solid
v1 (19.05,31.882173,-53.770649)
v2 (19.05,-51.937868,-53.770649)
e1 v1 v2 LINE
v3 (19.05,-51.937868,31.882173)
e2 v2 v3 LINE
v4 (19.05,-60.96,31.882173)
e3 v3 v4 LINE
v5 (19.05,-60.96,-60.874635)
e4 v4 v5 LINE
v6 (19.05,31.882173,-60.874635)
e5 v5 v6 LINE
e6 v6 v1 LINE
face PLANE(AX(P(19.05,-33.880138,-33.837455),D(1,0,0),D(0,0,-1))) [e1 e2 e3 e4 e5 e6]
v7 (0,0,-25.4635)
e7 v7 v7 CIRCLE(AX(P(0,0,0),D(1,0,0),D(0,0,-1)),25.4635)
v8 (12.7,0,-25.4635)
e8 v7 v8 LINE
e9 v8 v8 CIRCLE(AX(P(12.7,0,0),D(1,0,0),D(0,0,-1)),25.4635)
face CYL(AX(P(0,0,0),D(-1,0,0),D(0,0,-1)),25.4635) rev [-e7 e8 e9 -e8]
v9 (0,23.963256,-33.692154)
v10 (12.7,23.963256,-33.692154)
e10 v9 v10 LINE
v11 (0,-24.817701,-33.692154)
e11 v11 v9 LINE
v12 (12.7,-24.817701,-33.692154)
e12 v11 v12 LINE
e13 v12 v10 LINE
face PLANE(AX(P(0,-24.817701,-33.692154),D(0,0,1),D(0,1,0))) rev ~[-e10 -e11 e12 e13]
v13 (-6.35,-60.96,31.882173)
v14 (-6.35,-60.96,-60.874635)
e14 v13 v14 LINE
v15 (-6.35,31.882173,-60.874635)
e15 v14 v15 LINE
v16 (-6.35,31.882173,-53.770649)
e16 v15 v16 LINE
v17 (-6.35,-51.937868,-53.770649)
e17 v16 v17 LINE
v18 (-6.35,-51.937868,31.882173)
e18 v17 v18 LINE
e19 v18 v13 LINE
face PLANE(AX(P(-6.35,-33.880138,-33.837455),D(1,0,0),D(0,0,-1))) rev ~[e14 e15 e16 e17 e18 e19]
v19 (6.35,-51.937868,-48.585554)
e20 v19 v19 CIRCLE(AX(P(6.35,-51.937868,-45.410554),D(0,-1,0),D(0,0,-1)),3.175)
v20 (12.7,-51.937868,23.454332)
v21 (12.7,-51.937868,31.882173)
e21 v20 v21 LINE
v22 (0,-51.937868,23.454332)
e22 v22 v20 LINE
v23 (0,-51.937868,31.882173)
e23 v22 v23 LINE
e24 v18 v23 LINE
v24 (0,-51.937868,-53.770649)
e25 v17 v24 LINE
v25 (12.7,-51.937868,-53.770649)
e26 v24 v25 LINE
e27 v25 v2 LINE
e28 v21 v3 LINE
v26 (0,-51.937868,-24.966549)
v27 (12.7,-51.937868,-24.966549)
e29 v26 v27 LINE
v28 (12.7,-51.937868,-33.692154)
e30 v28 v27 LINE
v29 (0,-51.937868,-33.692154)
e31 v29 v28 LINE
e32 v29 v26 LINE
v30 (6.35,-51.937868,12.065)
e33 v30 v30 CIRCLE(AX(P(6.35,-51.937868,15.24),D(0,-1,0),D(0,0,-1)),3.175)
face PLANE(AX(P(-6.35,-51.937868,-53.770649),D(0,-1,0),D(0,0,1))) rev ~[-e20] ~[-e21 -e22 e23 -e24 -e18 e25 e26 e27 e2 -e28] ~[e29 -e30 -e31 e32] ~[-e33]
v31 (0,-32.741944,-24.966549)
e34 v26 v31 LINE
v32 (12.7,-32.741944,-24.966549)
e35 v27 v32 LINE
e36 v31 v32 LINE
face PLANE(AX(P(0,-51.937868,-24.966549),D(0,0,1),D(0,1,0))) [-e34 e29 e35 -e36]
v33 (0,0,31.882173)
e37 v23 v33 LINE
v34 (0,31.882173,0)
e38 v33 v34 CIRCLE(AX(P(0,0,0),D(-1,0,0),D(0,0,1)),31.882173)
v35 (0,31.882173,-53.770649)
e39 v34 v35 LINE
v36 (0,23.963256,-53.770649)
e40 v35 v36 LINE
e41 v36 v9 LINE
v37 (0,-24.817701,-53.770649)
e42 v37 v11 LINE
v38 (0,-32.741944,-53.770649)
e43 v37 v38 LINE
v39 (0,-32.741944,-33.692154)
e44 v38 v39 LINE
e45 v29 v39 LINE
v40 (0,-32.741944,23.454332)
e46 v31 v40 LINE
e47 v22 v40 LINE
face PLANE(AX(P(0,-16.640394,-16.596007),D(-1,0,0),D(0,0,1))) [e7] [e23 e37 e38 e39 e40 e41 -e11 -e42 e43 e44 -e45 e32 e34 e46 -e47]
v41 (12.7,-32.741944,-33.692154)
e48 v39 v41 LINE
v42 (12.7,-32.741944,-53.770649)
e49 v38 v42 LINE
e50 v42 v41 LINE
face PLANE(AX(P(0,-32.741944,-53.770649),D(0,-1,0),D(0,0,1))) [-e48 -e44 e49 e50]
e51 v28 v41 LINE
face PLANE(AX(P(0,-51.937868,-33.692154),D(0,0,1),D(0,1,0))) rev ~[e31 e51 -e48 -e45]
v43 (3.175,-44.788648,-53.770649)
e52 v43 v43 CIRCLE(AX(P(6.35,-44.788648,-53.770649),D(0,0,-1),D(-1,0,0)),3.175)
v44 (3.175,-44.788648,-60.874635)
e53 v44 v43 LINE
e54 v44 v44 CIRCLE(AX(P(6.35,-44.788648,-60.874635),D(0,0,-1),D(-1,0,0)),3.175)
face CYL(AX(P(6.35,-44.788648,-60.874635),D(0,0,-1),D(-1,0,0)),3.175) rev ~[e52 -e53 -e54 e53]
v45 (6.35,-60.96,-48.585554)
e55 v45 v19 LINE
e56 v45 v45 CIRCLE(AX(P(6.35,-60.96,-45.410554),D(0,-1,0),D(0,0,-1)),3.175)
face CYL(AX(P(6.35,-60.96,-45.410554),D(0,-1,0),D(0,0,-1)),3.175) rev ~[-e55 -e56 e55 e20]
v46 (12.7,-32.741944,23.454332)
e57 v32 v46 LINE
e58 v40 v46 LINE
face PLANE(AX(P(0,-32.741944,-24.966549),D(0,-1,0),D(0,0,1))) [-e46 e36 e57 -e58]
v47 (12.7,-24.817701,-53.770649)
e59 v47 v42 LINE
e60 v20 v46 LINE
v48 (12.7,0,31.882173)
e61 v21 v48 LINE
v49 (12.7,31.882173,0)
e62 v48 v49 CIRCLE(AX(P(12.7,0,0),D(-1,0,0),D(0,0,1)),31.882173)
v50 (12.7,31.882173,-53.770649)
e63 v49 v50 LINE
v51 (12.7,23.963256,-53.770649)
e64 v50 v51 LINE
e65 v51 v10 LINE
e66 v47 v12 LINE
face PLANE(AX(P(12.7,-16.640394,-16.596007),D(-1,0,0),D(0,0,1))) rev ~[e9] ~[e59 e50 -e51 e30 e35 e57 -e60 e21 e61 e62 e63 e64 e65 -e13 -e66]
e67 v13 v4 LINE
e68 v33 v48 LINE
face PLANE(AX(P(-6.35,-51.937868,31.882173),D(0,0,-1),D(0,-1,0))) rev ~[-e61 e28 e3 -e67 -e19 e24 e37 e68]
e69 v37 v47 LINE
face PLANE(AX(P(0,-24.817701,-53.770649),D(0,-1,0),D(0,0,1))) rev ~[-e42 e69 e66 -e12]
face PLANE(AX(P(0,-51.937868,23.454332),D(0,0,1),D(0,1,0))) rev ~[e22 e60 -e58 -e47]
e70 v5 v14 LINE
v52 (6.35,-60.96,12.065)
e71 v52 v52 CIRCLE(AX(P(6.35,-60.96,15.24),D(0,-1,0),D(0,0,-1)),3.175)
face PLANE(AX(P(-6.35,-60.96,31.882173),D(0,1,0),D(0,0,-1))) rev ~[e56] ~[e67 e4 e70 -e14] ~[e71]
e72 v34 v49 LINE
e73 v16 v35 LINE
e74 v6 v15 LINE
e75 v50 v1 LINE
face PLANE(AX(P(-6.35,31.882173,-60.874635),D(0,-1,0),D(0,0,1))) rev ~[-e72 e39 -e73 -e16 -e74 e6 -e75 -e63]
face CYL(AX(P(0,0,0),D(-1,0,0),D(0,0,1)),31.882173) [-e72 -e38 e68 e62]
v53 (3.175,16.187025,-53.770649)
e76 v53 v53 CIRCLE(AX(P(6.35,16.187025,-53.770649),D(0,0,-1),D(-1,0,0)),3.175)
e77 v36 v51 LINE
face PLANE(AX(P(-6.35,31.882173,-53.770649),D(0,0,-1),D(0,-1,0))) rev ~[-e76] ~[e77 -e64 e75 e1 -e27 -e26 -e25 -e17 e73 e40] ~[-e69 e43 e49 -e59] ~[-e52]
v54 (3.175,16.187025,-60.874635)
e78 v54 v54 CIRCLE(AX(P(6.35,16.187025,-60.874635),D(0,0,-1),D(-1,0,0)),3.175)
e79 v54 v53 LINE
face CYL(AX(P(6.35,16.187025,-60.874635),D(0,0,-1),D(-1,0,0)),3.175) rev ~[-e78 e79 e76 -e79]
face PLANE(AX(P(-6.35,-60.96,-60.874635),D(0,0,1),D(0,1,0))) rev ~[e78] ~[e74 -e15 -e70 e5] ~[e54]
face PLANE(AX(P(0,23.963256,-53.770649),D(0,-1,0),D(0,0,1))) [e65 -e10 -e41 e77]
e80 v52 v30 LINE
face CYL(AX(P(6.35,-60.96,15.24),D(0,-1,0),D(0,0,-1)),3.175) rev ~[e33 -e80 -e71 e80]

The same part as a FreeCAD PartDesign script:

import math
import FreeCAD as App
import Part
import Sketcher

V = App.Vector
Q = App.Units.Quantity


def add_polygon(sketch, points):
    """Adds a closed chain of lines whose ends are joined by coincident constraints."""
    first, n = sketch.GeometryCount, len(points)
    for a, b in zip(points, points[1:] + points[:1]):
        sketch.addGeometry(Part.LineSegment(App.Vector(*a, 0), App.Vector(*b, 0)), False)
    for i in range(n):
        sketch.addConstraint(Sketcher.Constraint("Coincident", first + i, 2, first + (i + 1) % n, 1))

doc = App.newDocument("Part")
body = doc.addObject("PartDesign::Body", "Body")

# Sketch on YZ plane
sketch1 = body.newObject("Sketcher::SketchObject", "Sketch")
sketch1.AttachmentSupport = (doc.getObject("YZ_Plane"), [""])
sketch1.MapMode = "FlatFace"
sketch1.addGeometry([
    Part.LineSegment(V(32, -61, 0), V(32, 0, 0)),  # 0
    Part.ArcOfCircle(Part.Circle(V(0, 0, 0), V(0, 0, 1), 32), math.radians(0), math.radians(90)),  # 1
    Part.LineSegment(V(0, 32, 0), V(-61, 32, 0)),  # 2
    Part.LineSegment(V(-61, 32, 0), V(-61, -61, 0)),  # 3
    Part.LineSegment(V(-61, -61, 0), V(32, -61, 0)),  # 4
    Part.Circle(V(0, 0, 0), V(0, 0, 1), 25),  # 5
], False)
sketch1.addConstraint([
    Sketcher.Constraint("Tangent", 0, 2, 1, 1),
    Sketcher.Constraint("Tangent", 1, 2, 2, 1),
    Sketcher.Constraint("Coincident", 2, 2, 3, 1),
    Sketcher.Constraint("Coincident", 3, 2, 4, 1),
    Sketcher.Constraint("Coincident", 4, 2, 0, 1),
    Sketcher.Constraint("Vertical", 0),
    Sketcher.Constraint("Horizontal", 2),
    Sketcher.Constraint("Vertical", 3),
    Sketcher.Constraint("Horizontal", 4),
    Sketcher.Constraint("Coincident", 1, 3, -1, 1),
    Sketcher.Constraint("Coincident", 5, 3, -1, 1),
    Sketcher.Constraint("Diameter", 5, Q("2.005 in")),
    Sketcher.Constraint("DistanceX", 2, 2, 2, 1, Q("2.4 in")),
    Sketcher.Constraint("Radius", 1, 31.882173),
    Sketcher.Constraint("DistanceY", 0, 1, 0, 2, 60.874635),
])
pad1 = body.newObject("PartDesign::Pad", "Pad")
pad1.Profile = sketch1
pad1.Length = Q("0.5 in")

# Sketch on YZ plane
sketch2 = body.newObject("Sketcher::SketchObject", "Sketch001")
sketch2.AttachmentSupport = (doc.getObject("YZ_Plane"), [""])
sketch2.MapMode = "FlatFace"
sketch2.AttachmentOffset = App.Placement(V(0, 0, 0.5 * 25.4), App.Rotation())
add_polygon(sketch2, [(32, -61), (32, -54), (-52, -54), (-52, 32), (-61, 32), (-61, -61)])  # lines 0-5
sketch2.addConstraint([
    Sketcher.Constraint("Vertical", 0),
    Sketcher.Constraint("Horizontal", 1),
    Sketcher.Constraint("Vertical", 2),
    Sketcher.Constraint("Horizontal", 3),
    Sketcher.Constraint("Vertical", 4),
    Sketcher.Constraint("Horizontal", 5),
    Sketcher.Constraint("DistanceX", 3, 2, -1, 1, Q("2.4 in")),
    Sketcher.Constraint("DistanceX", 1, 2, 1, 1, 83.820041),
    Sketcher.Constraint("DistanceY", 2, 1, 2, 2, 85.652822),
    Sketcher.Constraint("DistanceX", 3, 2, 3, 1, 9.022132),
    Sketcher.Constraint("DistanceY", 0, 1, 0, 2, 7.103986),
    Sketcher.Constraint("DistanceY", 0, 2, -1, 1, 53.770649),
])
pad2 = body.newObject("PartDesign::Pad", "Pad001")
pad2.Profile = sketch2
pad2.Type = "TwoLengths"
pad2.Length = Q("0.25 in")
pad2.Length2 = Q("0.75 in")

# Sketch on YZ plane
sketch3 = body.newObject("Sketcher::SketchObject", "Sketch002")
sketch3.AttachmentSupport = (doc.getObject("YZ_Plane"), [""])
sketch3.MapMode = "FlatFace"
add_polygon(sketch3, [(24, -54), (-25, -54), (-25, -34), (24, -34)])  # lines 0-3
add_polygon(sketch3, [(-33, -25), (-52, -25), (-52, 23), (-33, 23)])  # lines 4-7
add_polygon(sketch3, [(-33, -54), (-52, -54), (-52, -34), (-33, -34)])  # lines 8-11
sketch3.addConstraint([
    Sketcher.Constraint("Horizontal", 0),
    Sketcher.Constraint("Vertical", 1),
    Sketcher.Constraint("Horizontal", 2),
    Sketcher.Constraint("Vertical", 3),
    Sketcher.Constraint("Horizontal", 4),
    Sketcher.Constraint("Vertical", 5),
    Sketcher.Constraint("Horizontal", 6),
    Sketcher.Constraint("Vertical", 7),
    Sketcher.Constraint("Horizontal", 8),
    Sketcher.Constraint("Vertical", 9),
    Sketcher.Constraint("Horizontal", 10),
    Sketcher.Constraint("Vertical", 11),
    Sketcher.Constraint("Horizontal", 3, 2, 8, 2),
    Sketcher.Constraint("Horizontal", 2, 2, 9, 2),
    Sketcher.Constraint("Vertical", 5, 2, 8, 2),
    Sketcher.Constraint("Vertical", 7, 2, 10, 2),
    Sketcher.Constraint("DistanceY", 5, 1, 5, 2, 48.420881),
    Sketcher.Constraint("DistanceX", 0, 2, -1, 1, 24.817701),
    Sketcher.Constraint("DistanceY", 0, 2, 4, 2, 28.8041),
    Sketcher.Constraint("DistanceX", 6, 2, 2, 2, 56.7052),
    Sketcher.Constraint("DistanceX", 0, 2, 0, 1, 48.780957),
    Sketcher.Constraint("DistanceX", 4, 2, 4, 1, 19.195924),
    Sketcher.Constraint("DistanceY", 1, 1, 1, 2, 20.078495),
    Sketcher.Constraint("DistanceY", 0, 2, -1, 1, 53.770649),
])
pocket1 = body.newObject("PartDesign::Pocket", "Pocket")
pocket1.Profile = sketch3
pocket1.Length = Q("1.03 in")
pocket1.Reversed = True

# Sketch on XY plane
sketch4 = body.newObject("Sketcher::SketchObject", "Sketch003")
sketch4.AttachmentSupport = (doc.getObject("XY_Plane"), [""])
sketch4.MapMode = "FlatFace"
sketch4.AttachmentOffset = App.Placement(V(0, 0, -60.874635), App.Rotation())
sketch4.addGeometry([
    Part.Circle(V(6.3, 16.2, 0), V(0, 0, 1), 3.2),
    Part.Circle(V(6.3, -44.8, 0), V(0, 0, 1), 3.2),
], False)
sketch4.addConstraint([
    Sketcher.Constraint("Equal", 0, 1),
    Sketcher.Constraint("Vertical", 0, 3, 1, 3),
    Sketcher.Constraint("Diameter", 0, Q("0.25 in")),
    Sketcher.Constraint("DistanceX", -1, 1, 0, 3, Q("0.25 in")),
    Sketcher.Constraint("DistanceY", 1, 3, -1, 1, 44.788648),
    Sketcher.Constraint("DistanceY", -1, 1, 0, 3, 16.187025),
])
pocket2 = body.newObject("PartDesign::Pocket", "Pocket001")
pocket2.Profile = sketch4
pocket2.Length = Q("0.45 in")
pocket2.Reversed = True

# Sketch on XZ plane
sketch5 = body.newObject("Sketcher::SketchObject", "Sketch004")
sketch5.AttachmentSupport = (doc.getObject("XZ_Plane"), [""])
sketch5.MapMode = "FlatFace"
sketch5.AttachmentOffset = App.Placement(V(0, 0, 2.4 * 25.4), App.Rotation())
sketch5.addGeometry([
    Part.Circle(V(6.3, 15.2, 0), V(0, 0, 1), 3.2),
    Part.Circle(V(6.3, -45.4, 0), V(0, 0, 1), 3.2),
], False)
sketch5.addConstraint([
    Sketcher.Constraint("Equal", 0, 1),
    Sketcher.Constraint("Vertical", 0, 3, 1, 3),
    Sketcher.Constraint("Diameter", 0, Q("0.25 in")),
    Sketcher.Constraint("DistanceY", -1, 1, 0, 3, Q("0.6 in")),
    Sketcher.Constraint("DistanceX", -1, 1, 0, 3, Q("0.25 in")),
    Sketcher.Constraint("DistanceY", 1, 3, -1, 1, 45.410554),
])
pocket3 = body.newObject("PartDesign::Pocket", "Pocket002")
pocket3.Profile = sketch5
pocket3.Length = Q("0.45 in")

doc.recompute()
